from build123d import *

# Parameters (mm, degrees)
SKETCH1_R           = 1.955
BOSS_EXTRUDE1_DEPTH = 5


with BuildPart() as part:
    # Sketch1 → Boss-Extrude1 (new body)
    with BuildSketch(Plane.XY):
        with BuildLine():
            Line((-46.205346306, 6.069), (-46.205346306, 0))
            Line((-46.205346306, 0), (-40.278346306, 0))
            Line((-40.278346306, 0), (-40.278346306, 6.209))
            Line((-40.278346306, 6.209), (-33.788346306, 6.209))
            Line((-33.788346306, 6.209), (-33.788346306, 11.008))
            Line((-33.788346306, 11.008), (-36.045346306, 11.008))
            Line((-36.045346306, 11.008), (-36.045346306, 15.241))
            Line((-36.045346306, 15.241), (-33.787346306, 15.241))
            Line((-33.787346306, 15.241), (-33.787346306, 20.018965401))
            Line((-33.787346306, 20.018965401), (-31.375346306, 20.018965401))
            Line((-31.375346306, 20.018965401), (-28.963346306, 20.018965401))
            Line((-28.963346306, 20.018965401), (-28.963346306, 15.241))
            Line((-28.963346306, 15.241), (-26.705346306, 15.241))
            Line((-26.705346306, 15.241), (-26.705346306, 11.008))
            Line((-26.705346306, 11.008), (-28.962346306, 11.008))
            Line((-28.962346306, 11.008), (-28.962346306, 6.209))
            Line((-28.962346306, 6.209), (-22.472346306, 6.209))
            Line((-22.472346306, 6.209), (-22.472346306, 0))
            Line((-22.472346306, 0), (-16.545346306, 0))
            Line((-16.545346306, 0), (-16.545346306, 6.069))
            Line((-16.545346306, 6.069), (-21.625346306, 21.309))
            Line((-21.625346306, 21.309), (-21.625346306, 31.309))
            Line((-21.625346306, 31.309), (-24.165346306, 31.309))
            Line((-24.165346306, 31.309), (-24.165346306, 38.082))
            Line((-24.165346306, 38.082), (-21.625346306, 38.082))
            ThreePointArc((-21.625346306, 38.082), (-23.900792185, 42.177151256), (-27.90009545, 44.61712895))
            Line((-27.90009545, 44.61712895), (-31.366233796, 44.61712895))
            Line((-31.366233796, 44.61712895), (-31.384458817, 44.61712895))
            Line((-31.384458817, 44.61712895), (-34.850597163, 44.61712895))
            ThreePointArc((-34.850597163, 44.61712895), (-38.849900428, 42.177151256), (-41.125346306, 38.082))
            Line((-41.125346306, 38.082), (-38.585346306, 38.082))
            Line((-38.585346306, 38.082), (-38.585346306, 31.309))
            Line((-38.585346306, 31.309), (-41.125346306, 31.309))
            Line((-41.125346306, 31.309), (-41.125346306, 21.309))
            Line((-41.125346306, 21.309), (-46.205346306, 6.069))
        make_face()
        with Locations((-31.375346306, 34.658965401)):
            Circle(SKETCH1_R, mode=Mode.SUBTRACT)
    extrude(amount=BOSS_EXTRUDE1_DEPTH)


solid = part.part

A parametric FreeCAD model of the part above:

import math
import FreeCAD as App
import Part
import Sketcher
from FreeCAD import Vector
Q = App.Units.Quantity

doc = App.newDocument("Part")
body = doc.addObject("PartDesign::Body", "Body")

sketch1 = body.newObject("Sketcher::SketchObject", "Sketch")
sketch1.AttachmentSupport = (doc.getObject("XY_Plane"), [""])
sketch1.MapMode = "FlatFace"
sketch1.addGeometry([
    Part.LineSegment(Vector(-46.2, 6.1, 0), Vector(-46.2, 0, 0)),
    Part.LineSegment(Vector(-46.2, 0, 0), Vector(-40.3, 0, 0)),
    Part.LineSegment(Vector(-40.3, 0, 0), Vector(-40.3, 6.2, 0)),
    Part.LineSegment(Vector(-40.3, 6.2, 0), Vector(-33.8, 6.2, 0)),
    Part.LineSegment(Vector(-33.8, 6.2, 0), Vector(-33.8, 11, 0)),
    Part.LineSegment(Vector(-33.8, 11, 0), Vector(-36, 11, 0)),
    Part.LineSegment(Vector(-36, 11, 0), Vector(-36, 15.2, 0)),
    Part.LineSegment(Vector(-36, 15.2, 0), Vector(-33.8, 15.2, 0)),
    Part.LineSegment(Vector(-33.8, 15.2, 0), Vector(-33.8, 20, 0)),
    Part.LineSegment(Vector(-33.8, 20, 0), Vector(-29, 20, 0)),
    Part.LineSegment(Vector(-29, 20, 0), Vector(-29, 15.2, 0)),
    Part.LineSegment(Vector(-29, 15.2, 0), Vector(-26.7, 15.2, 0)),
    Part.LineSegment(Vector(-26.7, 15.2, 0), Vector(-26.7, 11, 0)),
    Part.LineSegment(Vector(-26.7, 11, 0), Vector(-29, 11, 0)),
    Part.LineSegment(Vector(-29, 11, 0), Vector(-29, 6.2, 0)),
    Part.LineSegment(Vector(-29, 6.2, 0), Vector(-22.5, 6.2, 0)),
    Part.LineSegment(Vector(-22.5, 6.2, 0), Vector(-22.5, 0, 0)),
    Part.LineSegment(Vector(-22.5, 0, 0), Vector(-16.5, 0, 0)),
    Part.LineSegment(Vector(-16.5, 0, 0), Vector(-16.5, 6.1, 0)),
    Part.LineSegment(Vector(-16.5, 6.1, 0), Vector(-21.6, 21.3, 0)),
    Part.LineSegment(Vector(-21.6, 21.3, 0), Vector(-21.6, 31.3, 0)),
    Part.LineSegment(Vector(-21.6, 31.3, 0), Vector(-24.2, 31.3, 0)),
    Part.LineSegment(Vector(-24.2, 31.3, 0), Vector(-24.2, 38.1, 0)),
    Part.LineSegment(Vector(-24.2, 38.1, 0), Vector(-21.6, 38.1, 0)),
    Part.ArcOfCircle(Part.Circle(Vector(-30.5, 35.8, 0), Vector(0, 0, 1), 9.2), math.radians(14), math.radians(73)),
    Part.LineSegment(Vector(-27.9, 44.6, 0), Vector(-34.9, 44.6, 0)),
    Part.ArcOfCircle(Part.Circle(Vector(-32.2, 35.8, 0), Vector(0, 0, 1), 9.2), math.radians(107), math.radians(166)),
    Part.LineSegment(Vector(-41.1, 38.1, 0), Vector(-38.6, 38.1, 0)),
    Part.LineSegment(Vector(-38.6, 38.1, 0), Vector(-38.6, 31.3, 0)),
    Part.LineSegment(Vector(-38.6, 31.3, 0), Vector(-41.1, 31.3, 0)),
    Part.LineSegment(Vector(-41.1, 31.3, 0), Vector(-41.1, 21.3, 0)),
    Part.LineSegment(Vector(-41.1, 21.3, 0), Vector(-46.2, 6.1, 0)),
    Part.Circle(Vector(-31.4, 34.7, 0), Vector(0, 0, 1), 2),
], False)
sketch1.addConstraint([
    Sketcher.Constraint("Coincident", 0, 2, 1, 1),
    Sketcher.Constraint("Coincident", 1, 2, 2, 1),
    Sketcher.Constraint("Coincident", 2, 2, 3, 1),
    Sketcher.Constraint("Coincident", 3, 2, 4, 1),
    Sketcher.Constraint("Coincident", 4, 2, 5, 1),
    Sketcher.Constraint("Coincident", 5, 2, 6, 1),
    Sketcher.Constraint("Coincident", 6, 2, 7, 1),
    Sketcher.Constraint("Coincident", 7, 2, 8, 1),
    Sketcher.Constraint("Coincident", 8, 2, 9, 1),
    Sketcher.Constraint("Coincident", 9, 2, 10, 1),
    Sketcher.Constraint("Coincident", 10, 2, 11, 1),
    Sketcher.Constraint("Coincident", 11, 2, 12, 1),
    Sketcher.Constraint("Coincident", 12, 2, 13, 1),
    Sketcher.Constraint("Coincident", 13, 2, 14, 1),
    Sketcher.Constraint("Coincident", 14, 2, 15, 1),
    Sketcher.Constraint("Coincident", 15, 2, 16, 1),
    Sketcher.Constraint("Coincident", 16, 2, 17, 1),
    Sketcher.Constraint("Coincident", 17, 2, 18, 1),
    Sketcher.Constraint("Coincident", 18, 2, 19, 1),
    Sketcher.Constraint("Coincident", 19, 2, 20, 1),
    Sketcher.Constraint("Coincident", 20, 2, 21, 1),
    Sketcher.Constraint("Coincident", 21, 2, 22, 1),
    Sketcher.Constraint("Coincident", 22, 2, 23, 1),
    Sketcher.Constraint("Coincident", 23, 2, 24, 1),
    Sketcher.Constraint("Coincident", 24, 2, 25, 1),
    Sketcher.Constraint("Coincident", 25, 2, 26, 1),
    Sketcher.Constraint("Coincident", 26, 2, 27, 1),
    Sketcher.Constraint("Coincident", 27, 2, 28, 1),
    Sketcher.Constraint("Coincident", 28, 2, 29, 1),
    Sketcher.Constraint("Coincident", 29, 2, 30, 1),
    Sketcher.Constraint("Coincident", 30, 2, 31, 1),
    Sketcher.Constraint("Coincident", 31, 2, 0, 1),
    Sketcher.Constraint("Vertical", 0),
    Sketcher.Constraint("Horizontal", 1),
    Sketcher.Constraint("Vertical", 2),
    Sketcher.Constraint("Horizontal", 3),
    Sketcher.Constraint("Vertical", 4),
    Sketcher.Constraint("Horizontal", 5),
    Sketcher.Constraint("Vertical", 6),
    Sketcher.Constraint("Horizontal", 7),
    Sketcher.Constraint("Vertical", 8),
    Sketcher.Constraint("Horizontal", 9),
    Sketcher.Constraint("Vertical", 10),
    Sketcher.Constraint("Horizontal", 11),
    Sketcher.Constraint("Vertical", 12),
    Sketcher.Constraint("Horizontal", 13),
    Sketcher.Constraint("Vertical", 14),
    Sketcher.Constraint("Horizontal", 15),
    Sketcher.Constraint("Vertical", 16),
    Sketcher.Constraint("Horizontal", 17),
    Sketcher.Constraint("Vertical", 18),
    Sketcher.Constraint("Vertical", 20),
    Sketcher.Constraint("Horizontal", 21),
    Sketcher.Constraint("Vertical", 22),
    Sketcher.Constraint("Horizontal", 23),
    Sketcher.Constraint("Horizontal", 25),
    Sketcher.Constraint("Horizontal", 27),
    Sketcher.Constraint("Vertical", 28),
    Sketcher.Constraint("Horizontal", 29),
    Sketcher.Constraint("Vertical", 30),
    Sketcher.Constraint("Equal", 24, 26),
    Sketcher.Constraint("PointOnObject", 0, 2, -1),
    Sketcher.Constraint("PointOnObject", 16, 2, -1),
    Sketcher.Constraint("Horizontal", 24, 3, 26, 3),
    Sketcher.Constraint("Horizontal", 7, 2, 10, 2),
    Sketcher.Constraint("Horizontal", 5, 2, 12, 2),
    Sketcher.Constraint("Horizontal", 3, 2, 14, 2),
    Sketcher.Constraint("Horizontal", 23, 2, 26, 2),
    Sketcher.Constraint("Horizontal", 21, 2, 28, 2),
    Sketcher.Constraint("Horizontal", 19, 2, 30, 2),
    Sketcher.Constraint("Horizontal", 18, 2, 31, 2),
    Sketcher.Constraint("Vertical", 20, 2, 23, 2),
    Sketcher.Constraint("Vertical", 26, 2, 29, 2),
    Sketcher.Constraint("Equal", 7, 11),
    Sketcher.Constraint("Equal", 5, 13),
    Sketcher.Constraint("Equal", 3, 15),
    Sketcher.Constraint("Equal", 1, 17),
    Sketcher.Constraint("Equal", 23, 27),
    Sketcher.Constraint("Equal", 19, 31),
    Sketcher.Constraint("Diameter", 32, Q("3.91 mm")),
    Sketcher.Constraint("DistanceY", 20, 1, 20, 2, Q("10 mm")),
    Sketcher.Constraint("DistanceX", 3, 1, 3, 2, Q("6.49 mm")),
    Sketcher.Constraint("DistanceX", 21, 2, 21, 1, Q("2.54 mm")),
    Sketcher.Constraint("DistanceX", 1, 1, 1, 2, Q("5.927 mm")),
    Sketcher.Constraint("DistanceX", 5, 2, 5, 1, Q("2.257 mm")),
    Sketcher.Constraint("DistanceX", 7, 1, 7, 2, Q("2.258 mm")),
    Sketcher.Constraint("DistanceX", 9, 1, 9, 2, Q("4.824 mm")),
    Sketcher.Constraint("DistanceY", 0, 2, 0, 1, Q("6.069 mm")),
    Sketcher.Constraint("DistanceY", 2, 1, 2, 2, Q("6.209 mm")),
    Sketcher.Constraint("DistanceY", 4, 1, 4, 2, Q("4.799 mm")),
    Sketcher.Constraint("DistanceY", 6, 1, 6, 2, Q("4.233 mm")),
    Sketcher.Constraint("DistanceY", 22, 1, 22, 2, Q("6.773 mm")),
    Sketcher.Constraint("DistanceX", 0, 2, 32, 3, Q("14.83 mm")),
    Sketcher.Constraint("DistanceX", 11, 2, 19, 2, Q("5.08 mm")),
    Sketcher.Constraint("DistanceX", 25, 2, 25, 1, Q("6.950502 mm")),
    Sketcher.Constraint("DistanceY", -1, 1, 19, 2, Q("21.309 mm")),
    Sketcher.Constraint("Radius", 24, Q("9.183885 mm")),
    Sketcher.Constraint("DistanceY", 8, 1, 8, 2, Q("4.777965 mm")),
    Sketcher.Constraint("DistanceX", 24, 3, -1, 1, Q("30.525411 mm")),
    Sketcher.Constraint("DistanceX", 26, 3, -1, 1, Q("32.225281 mm")),
    Sketcher.Constraint("DistanceY", -1, 1, 32, 3, Q("34.658965 mm")),
])
pad1 = body.newObject("PartDesign::Pad", "Pad")
pad1.Profile = sketch1
pad1.Length = 5

doc.recompute()
